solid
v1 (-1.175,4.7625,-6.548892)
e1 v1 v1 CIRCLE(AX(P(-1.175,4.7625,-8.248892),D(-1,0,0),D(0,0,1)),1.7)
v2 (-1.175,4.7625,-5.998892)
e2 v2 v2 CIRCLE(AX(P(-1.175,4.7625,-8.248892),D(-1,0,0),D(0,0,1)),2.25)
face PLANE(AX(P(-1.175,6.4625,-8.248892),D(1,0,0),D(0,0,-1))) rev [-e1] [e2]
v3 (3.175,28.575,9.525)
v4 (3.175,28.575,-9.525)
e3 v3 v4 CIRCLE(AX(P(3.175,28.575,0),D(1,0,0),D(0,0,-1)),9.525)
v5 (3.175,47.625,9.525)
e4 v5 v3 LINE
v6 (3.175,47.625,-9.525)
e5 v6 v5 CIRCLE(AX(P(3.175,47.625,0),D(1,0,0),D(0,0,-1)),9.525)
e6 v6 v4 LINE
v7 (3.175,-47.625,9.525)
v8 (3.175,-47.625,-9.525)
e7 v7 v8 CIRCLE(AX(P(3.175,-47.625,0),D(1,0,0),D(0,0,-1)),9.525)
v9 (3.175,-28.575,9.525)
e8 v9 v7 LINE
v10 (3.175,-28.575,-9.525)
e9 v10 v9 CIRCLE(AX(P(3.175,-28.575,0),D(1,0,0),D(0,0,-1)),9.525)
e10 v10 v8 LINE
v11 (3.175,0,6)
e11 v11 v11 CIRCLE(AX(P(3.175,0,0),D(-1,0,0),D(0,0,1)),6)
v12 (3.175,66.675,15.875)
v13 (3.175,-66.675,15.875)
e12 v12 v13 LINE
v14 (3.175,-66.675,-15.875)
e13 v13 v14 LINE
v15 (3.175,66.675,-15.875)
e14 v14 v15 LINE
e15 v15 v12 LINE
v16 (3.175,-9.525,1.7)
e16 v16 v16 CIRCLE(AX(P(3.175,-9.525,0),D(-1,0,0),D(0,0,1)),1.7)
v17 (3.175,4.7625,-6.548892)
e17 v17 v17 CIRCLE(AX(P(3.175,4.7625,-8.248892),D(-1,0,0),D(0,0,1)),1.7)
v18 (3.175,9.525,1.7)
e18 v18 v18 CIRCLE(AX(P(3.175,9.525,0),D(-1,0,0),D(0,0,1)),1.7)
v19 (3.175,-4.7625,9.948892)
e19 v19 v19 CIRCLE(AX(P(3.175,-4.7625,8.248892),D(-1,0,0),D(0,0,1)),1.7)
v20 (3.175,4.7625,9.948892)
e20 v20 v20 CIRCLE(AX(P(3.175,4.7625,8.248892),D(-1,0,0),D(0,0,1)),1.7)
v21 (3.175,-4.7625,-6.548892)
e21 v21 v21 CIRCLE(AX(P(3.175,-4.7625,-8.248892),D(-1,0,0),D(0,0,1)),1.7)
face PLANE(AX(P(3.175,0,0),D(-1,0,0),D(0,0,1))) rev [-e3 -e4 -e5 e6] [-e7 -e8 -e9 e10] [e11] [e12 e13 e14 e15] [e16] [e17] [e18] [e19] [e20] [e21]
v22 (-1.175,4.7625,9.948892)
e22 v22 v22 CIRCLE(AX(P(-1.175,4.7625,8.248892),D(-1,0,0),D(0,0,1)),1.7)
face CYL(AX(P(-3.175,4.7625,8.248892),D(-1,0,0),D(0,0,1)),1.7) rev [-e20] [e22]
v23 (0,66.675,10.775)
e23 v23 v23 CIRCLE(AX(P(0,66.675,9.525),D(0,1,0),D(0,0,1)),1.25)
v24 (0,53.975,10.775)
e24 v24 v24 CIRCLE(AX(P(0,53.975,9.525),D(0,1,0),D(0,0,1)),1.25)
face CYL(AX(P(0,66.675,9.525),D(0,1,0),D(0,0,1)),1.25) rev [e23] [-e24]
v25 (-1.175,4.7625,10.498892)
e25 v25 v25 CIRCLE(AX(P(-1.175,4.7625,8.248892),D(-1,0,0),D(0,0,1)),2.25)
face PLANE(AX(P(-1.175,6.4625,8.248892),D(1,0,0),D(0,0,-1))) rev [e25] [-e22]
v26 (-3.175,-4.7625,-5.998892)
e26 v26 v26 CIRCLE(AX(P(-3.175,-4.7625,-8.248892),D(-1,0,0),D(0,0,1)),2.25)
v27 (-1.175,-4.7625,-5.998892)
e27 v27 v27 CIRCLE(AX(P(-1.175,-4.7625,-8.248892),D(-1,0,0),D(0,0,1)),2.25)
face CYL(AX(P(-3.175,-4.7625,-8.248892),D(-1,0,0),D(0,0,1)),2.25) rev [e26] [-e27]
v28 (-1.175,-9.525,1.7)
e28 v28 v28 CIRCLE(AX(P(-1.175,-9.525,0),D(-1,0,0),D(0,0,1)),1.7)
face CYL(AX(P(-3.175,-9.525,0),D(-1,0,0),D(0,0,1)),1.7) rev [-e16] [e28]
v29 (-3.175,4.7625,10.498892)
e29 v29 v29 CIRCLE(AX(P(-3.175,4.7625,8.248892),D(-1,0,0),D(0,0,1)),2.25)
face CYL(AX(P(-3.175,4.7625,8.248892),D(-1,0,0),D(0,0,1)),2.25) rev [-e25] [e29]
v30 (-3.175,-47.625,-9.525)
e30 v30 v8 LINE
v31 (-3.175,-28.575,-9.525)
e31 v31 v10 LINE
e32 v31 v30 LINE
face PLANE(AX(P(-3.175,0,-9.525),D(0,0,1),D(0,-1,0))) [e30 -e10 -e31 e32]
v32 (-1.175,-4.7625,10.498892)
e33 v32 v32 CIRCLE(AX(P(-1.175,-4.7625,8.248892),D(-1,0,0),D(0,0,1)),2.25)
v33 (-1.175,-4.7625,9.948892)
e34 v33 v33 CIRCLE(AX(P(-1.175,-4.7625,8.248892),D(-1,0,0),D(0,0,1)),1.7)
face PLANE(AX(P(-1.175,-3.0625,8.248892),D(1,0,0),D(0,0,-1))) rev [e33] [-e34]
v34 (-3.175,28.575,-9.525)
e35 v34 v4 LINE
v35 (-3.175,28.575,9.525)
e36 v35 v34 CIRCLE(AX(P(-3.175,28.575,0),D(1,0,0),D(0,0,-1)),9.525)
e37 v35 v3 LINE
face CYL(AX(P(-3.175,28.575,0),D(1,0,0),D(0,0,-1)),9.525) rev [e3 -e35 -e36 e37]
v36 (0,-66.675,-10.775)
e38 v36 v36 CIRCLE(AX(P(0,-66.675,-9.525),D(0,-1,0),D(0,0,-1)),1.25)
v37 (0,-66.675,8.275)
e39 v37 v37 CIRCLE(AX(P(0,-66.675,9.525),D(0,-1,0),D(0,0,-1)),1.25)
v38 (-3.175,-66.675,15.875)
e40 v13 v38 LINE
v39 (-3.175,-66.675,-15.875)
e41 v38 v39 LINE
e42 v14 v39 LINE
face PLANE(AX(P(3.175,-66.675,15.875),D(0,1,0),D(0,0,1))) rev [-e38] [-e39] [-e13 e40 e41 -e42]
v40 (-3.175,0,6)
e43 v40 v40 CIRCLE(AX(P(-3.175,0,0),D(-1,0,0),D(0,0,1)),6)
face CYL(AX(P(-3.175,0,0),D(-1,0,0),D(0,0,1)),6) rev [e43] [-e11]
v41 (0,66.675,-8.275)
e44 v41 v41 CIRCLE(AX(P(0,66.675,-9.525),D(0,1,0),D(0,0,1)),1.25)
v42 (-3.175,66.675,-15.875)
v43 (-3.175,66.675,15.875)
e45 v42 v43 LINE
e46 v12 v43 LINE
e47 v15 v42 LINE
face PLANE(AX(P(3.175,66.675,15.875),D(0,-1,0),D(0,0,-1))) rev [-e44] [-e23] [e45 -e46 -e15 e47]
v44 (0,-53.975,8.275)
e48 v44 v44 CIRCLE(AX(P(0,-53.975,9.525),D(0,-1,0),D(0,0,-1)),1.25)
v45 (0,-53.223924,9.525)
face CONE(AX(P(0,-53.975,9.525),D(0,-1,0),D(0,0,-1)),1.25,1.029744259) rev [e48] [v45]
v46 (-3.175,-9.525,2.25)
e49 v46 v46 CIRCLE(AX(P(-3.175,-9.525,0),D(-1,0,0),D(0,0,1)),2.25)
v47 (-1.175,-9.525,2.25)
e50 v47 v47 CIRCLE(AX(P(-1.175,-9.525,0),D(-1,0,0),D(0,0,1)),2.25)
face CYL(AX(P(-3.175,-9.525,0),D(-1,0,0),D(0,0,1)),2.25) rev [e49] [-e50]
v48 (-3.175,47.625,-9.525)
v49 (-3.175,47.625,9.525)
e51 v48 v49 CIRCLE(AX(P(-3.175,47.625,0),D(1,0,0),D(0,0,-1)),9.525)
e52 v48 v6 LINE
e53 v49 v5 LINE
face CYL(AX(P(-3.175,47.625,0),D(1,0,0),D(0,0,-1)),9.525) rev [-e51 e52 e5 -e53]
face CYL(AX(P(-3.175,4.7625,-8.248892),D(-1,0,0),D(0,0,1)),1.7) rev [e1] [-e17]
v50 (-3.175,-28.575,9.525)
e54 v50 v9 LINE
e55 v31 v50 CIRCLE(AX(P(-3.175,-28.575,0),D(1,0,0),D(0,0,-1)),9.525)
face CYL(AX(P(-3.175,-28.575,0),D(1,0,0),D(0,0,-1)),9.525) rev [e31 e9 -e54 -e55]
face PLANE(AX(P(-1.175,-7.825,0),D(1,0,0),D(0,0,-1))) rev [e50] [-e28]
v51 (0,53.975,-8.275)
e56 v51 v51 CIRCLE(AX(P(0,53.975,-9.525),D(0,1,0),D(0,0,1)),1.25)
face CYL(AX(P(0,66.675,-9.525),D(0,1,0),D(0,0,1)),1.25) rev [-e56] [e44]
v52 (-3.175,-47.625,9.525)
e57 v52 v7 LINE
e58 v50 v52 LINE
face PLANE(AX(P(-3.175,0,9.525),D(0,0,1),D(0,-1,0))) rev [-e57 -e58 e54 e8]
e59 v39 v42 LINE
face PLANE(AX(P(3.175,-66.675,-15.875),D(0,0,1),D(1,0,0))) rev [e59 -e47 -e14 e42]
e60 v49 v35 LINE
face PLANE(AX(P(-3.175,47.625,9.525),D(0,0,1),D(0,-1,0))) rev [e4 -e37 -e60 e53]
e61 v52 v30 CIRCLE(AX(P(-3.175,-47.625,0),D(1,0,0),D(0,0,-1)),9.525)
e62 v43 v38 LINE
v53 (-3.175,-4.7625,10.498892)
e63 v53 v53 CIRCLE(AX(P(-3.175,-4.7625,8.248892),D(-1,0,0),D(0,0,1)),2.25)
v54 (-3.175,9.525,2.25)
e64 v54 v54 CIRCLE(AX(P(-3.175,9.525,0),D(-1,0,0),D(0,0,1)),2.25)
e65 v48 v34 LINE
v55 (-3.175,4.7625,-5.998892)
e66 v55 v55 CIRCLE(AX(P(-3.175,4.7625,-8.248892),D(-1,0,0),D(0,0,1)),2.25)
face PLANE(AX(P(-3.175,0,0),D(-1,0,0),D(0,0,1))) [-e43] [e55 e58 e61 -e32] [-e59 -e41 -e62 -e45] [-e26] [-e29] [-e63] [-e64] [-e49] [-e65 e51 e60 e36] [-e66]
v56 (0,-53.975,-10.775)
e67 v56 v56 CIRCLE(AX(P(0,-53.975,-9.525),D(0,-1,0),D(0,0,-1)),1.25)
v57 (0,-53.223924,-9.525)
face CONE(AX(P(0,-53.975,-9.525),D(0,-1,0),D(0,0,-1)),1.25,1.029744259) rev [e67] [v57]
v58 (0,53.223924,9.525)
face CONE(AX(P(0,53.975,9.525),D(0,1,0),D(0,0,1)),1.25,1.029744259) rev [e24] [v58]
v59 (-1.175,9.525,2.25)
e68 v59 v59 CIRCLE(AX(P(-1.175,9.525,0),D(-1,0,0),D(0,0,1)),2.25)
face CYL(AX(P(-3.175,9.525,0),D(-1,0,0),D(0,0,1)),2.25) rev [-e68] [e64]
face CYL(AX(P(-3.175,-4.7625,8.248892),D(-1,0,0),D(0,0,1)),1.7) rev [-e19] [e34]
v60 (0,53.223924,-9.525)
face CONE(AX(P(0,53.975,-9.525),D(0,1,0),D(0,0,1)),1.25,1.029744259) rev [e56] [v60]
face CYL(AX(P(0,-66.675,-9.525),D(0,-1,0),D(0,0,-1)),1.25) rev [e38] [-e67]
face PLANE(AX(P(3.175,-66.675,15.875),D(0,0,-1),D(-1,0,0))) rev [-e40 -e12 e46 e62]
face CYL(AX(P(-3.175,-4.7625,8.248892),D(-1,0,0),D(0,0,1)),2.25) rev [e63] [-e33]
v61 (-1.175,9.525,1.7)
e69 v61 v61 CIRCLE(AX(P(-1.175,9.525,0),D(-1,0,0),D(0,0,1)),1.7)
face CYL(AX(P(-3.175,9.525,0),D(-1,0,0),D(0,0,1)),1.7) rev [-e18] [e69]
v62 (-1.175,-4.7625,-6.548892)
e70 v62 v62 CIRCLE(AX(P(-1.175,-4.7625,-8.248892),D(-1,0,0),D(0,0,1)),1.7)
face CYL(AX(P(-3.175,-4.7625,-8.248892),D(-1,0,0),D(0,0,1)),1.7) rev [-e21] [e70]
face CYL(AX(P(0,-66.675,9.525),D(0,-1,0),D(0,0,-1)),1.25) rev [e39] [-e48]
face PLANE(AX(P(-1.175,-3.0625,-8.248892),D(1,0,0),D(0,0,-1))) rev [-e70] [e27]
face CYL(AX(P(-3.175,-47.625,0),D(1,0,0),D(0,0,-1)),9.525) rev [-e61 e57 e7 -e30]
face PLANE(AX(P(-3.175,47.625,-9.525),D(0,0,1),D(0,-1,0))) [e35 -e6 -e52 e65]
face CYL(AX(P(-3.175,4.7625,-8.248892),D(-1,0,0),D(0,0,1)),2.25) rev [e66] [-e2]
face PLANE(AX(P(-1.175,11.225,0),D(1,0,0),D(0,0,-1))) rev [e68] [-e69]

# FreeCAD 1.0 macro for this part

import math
import FreeCAD as App
import Part
import Sketcher

V = App.Vector
Q = App.Units.Quantity

doc = App.newDocument("Part")
body = doc.addObject("PartDesign::Body", "Body")

sketch1 = body.newObject("Sketcher::SketchObject", "Sketch")
sketch1.AttachmentSupport = (doc.getObject("YZ_Plane"), [""])
sketch1.MapMode = "FlatFace"
sketch1.addGeometry(Part.LineSegment(V(67, 16, 0), V(-67, 16, 0)), False)
sketch1.addGeometry(Part.LineSegment(V(-67, 16, 0), V(-67, -16, 0)), False)
sketch1.addGeometry(Part.LineSegment(V(-67, -16, 0), V(67, -16, 0)), False)
sketch1.addGeometry(Part.LineSegment(V(67, -16, 0), V(67, 16, 0)), False)
sketch1.addConstraint(Sketcher.Constraint("Coincident", 0, 2, 1, 1))
sketch1.addConstraint(Sketcher.Constraint("Coincident", 1, 2, 2, 1))
sketch1.addConstraint(Sketcher.Constraint("Coincident", 2, 2, 3, 1))
sketch1.addConstraint(Sketcher.Constraint("Coincident", 3, 2, 0, 1))
sketch1.addConstraint(Sketcher.Constraint("Horizontal", 0))
sketch1.addConstraint(Sketcher.Constraint("Vertical", 1))
sketch1.addConstraint(Sketcher.Constraint("Horizontal", 2))
sketch1.addConstraint(Sketcher.Constraint("Vertical", 3))
sketch1.addConstraint(Sketcher.Constraint("Symmetric", 0, 2, 2, 2, -1, 1))
sketch1.addConstraint(Sketcher.Constraint("DistanceX", 0, 2, 0, 1, Q("5.25 in")))
sketch1.addConstraint(Sketcher.Constraint("DistanceY", 1, 2, 1, 1, Q("1.25 in")))
pad1 = body.newObject("PartDesign::Pad", "Pad")
pad1.Profile = sketch1
pad1.Length = Q("0.25 in")
pad1.Midplane = True

sketch2 = body.newObject("Sketcher::SketchObject", "Sketch001")
sketch2.AttachmentSupport = (doc.getObject("YZ_Plane"), [""])
sketch2.MapMode = "FlatFace"
sketch2.addGeometry(Part.LineSegment(V(53.2, -9.5, 0), V(66.7, -9.5, 0)), False)
sketch2.addGeometry(Part.LineSegment(V(66.7, -9.5, 0), V(66.7, -8.3, 0)), False)
sketch2.addGeometry(Part.LineSegment(V(66.7, -8.3, 0), V(54, -8.3, 0)), False)
sketch2.addGeometry(Part.LineSegment(V(54, -8.3, 0), V(53.2, -9.5, 0)), False)
sketch2.addGeometry(Part.LineSegment(V(66.7, -9.5, 0), V(53.2, -9.5, 0)), True)
sketch2.addConstraint(Sketcher.Constraint("Coincident", 0, 2, 1, 1))
sketch2.addConstraint(Sketcher.Constraint("Coincident", 1, 2, 2, 1))
sketch2.addConstraint(Sketcher.Constraint("Coincident", 2, 2, 3, 1))
sketch2.addConstraint(Sketcher.Constraint("Coincident", 3, 2, 0, 1))
sketch2.addConstraint(Sketcher.Constraint("Horizontal", 0))
sketch2.addConstraint(Sketcher.Constraint("Vertical", 1))
sketch2.addConstraint(Sketcher.Constraint("Horizontal", 2))
sketch2.addConstraint(Sketcher.Constraint("Horizontal", 4))
sketch2.addConstraint(Sketcher.Constraint("Coincident", 4, 1, 0, 2))
sketch2.addConstraint(Sketcher.Constraint("Equal", 0, 4))
sketch2.addConstraint(Sketcher.Constraint("DistanceX", 2, 2, 2, 1, Q("0.5 in")))
sketch2.addConstraint(Sketcher.Constraint("Angle", 3, Q("-121 deg")))
sketch2.addConstraint(Sketcher.Constraint("DistanceX", -1, 1, 0, 2, Q("2.625 in")))
sketch2.addConstraint(Sketcher.Constraint("DistanceY", 0, 2, -1, 1, Q("0.375 in")))
sketch2.addConstraint(Sketcher.Constraint("DistanceY", 1, 1, 1, 2, 1.25))
groove = body.newObject("PartDesign::Groove", "Groove")
groove.Profile = sketch2
groove.ReferenceAxis = (sketch2, ["Axis0"])
groove.Angle = 360
doc.recompute()

linearpattern = body.newObject("PartDesign::LinearPattern", "LinearPattern")
linearpattern.Originals = [groove]
linearpattern.Direction = (doc.getObject("Z_Axis"), [""])
linearpattern.Mode = "offset"
linearpattern.Offset = Q("0.75 in")
linearpattern.Occurrences = 2
body.Tip = linearpattern
doc.recompute()

mirrored = body.newObject("PartDesign::Mirrored", "Mirrored")
mirrored.Originals = [groove]
mirrored.MirrorPlane = (doc.getObject("XZ_Plane"), [""])
body.Tip = mirrored

sketch3 = body.newObject("Sketcher::SketchObject", "Sketch002")
sketch3.AttachmentSupport = (doc.getObject("YZ_Plane"), [""])
sketch3.MapMode = "FlatFace"
sketch3.addGeometry(Part.LineSegment(V(-66.7, 9.5, 0), V(-53.2, 9.5, 0)), False)
sketch3.addGeometry(Part.LineSegment(V(-53.2, 9.5, 0), V(-54, 10.8, 0)), False)
sketch3.addGeometry(Part.LineSegment(V(-54, 10.8, 0), V(-66.7, 10.8, 0)), False)
sketch3.addGeometry(Part.LineSegment(V(-66.7, 10.8, 0), V(-66.7, 9.5, 0)), False)
sketch3.addGeometry(Part.LineSegment(V(-53.2, 9.5, 0), V(-66.7, 9.5, 0)), True)
sketch3.addConstraint(Sketcher.Constraint("Coincident", 0, 2, 1, 1))
sketch3.addConstraint(Sketcher.Constraint("Coincident", 1, 2, 2, 1))
sketch3.addConstraint(Sketcher.Constraint("Coincident", 2, 2, 3, 1))
sketch3.addConstraint(Sketcher.Constraint("Coincident", 3, 2, 0, 1))
sketch3.addConstraint(Sketcher.Constraint("Horizontal", 0))
sketch3.addConstraint(Sketcher.Constraint("Horizontal", 2))
sketch3.addConstraint(Sketcher.Constraint("Vertical", 3))
sketch3.addConstraint(Sketcher.Constraint("Horizontal", 4))
sketch3.addConstraint(Sketcher.Constraint("Coincident", 4, 1, 0, 2))
sketch3.addConstraint(Sketcher.Constraint("Vertical", 2, 2, 4, 2))
sketch3.addConstraint(Sketcher.Constraint("DistanceX", 2, 2, 2, 1, Q("0.5 in")))
sketch3.addConstraint(Sketcher.Constraint("Angle", 1, Q("121 deg")))
sketch3.addConstraint(Sketcher.Constraint("DistanceY", -1, 1, 0, 2, Q("0.375 in")))
sketch3.addConstraint(Sketcher.Constraint("DistanceX", 1, 2, -1, 1, Q("2.125 in")))
sketch3.addConstraint(Sketcher.Constraint("DistanceY", 3, 2, 3, 1, 1.25))
groove2 = body.newObject("PartDesign::Groove", "Groove001")
groove2.Profile = sketch3
groove2.ReferenceAxis = (sketch3, ["Axis0"])
groove2.Angle = 360

sketch4 = body.newObject("Sketcher::SketchObject", "Sketch003")
sketch4.AttachmentSupport = (doc.getObject("YZ_Plane"), [""])
sketch4.MapMode = "FlatFace"
sketch4.AttachmentOffset = App.Placement(V(0, 0, -0.125 * 25.4), App.Rotation())
sketch4.addGeometry(Part.Circle(V(0, 0, 0), V(0, 0, 1), 6), False)
sketch4.addConstraint(Sketcher.Constraint("Coincident", 0, 3, -1, 1))
sketch4.addConstraint(Sketcher.Constraint("Diameter", 0, 12.0))
doc.recompute()
hole = body.newObject("PartDesign::Hole", "Hole")
hole.Profile = sketch4
hole.ThreadType = "None"
hole.Diameter = 12
hole.DepthType = "ThroughAll"
hole.Reversed = True

sketch5 = body.newObject("Sketcher::SketchObject", "Sketch004")
sketch5.AttachmentSupport = (doc.getObject("YZ_Plane"), [""])
sketch5.MapMode = "FlatFace"
sketch5.AttachmentOffset = App.Placement(V(0, 0, -0.125 * 25.4), App.Rotation())
sketch5.addGeometry(Part.Circle(V(-4.8, 8.2, 0), V(0, 0, 1), 1.7), False)
sketch5.addGeometry(Part.Circle(V(4.8, 8.2, 0), V(0, 0, 1), 1.7), False)
sketch5.addGeometry(Part.Circle(V(9.5, 0, 0), V(0, 0, 1), 1.7), False)
sketch5.addGeometry(Part.Circle(V(4.8, -8.2, 0), V(0, 0, 1), 1.7), False)
sketch5.addGeometry(Part.Circle(V(-4.8, -8.2, 0), V(0, 0, 1), 1.7), False)
sketch5.addGeometry(Part.Circle(V(-9.5, 0, 0), V(0, 0, 1), 1.7), False)
sketch5.addConstraint(Sketcher.Constraint("Equal", 0, 1))
sketch5.addConstraint(Sketcher.Constraint("Equal", 1, 2))
sketch5.addConstraint(Sketcher.Constraint("Equal", 2, 3))
sketch5.addConstraint(Sketcher.Constraint("Equal", 3, 4))
sketch5.addConstraint(Sketcher.Constraint("Equal", 4, 5))
sketch5.addConstraint(Sketcher.Constraint("Symmetric", 0, 3, 3, 3, -1, 1))
sketch5.addConstraint(Sketcher.Constraint("Symmetric", 1, 3, 4, 3, -1, 1))
sketch5.addConstraint(Sketcher.Constraint("Symmetric", 2, 3, 5, 3, -1, 1))
sketch5.addConstraint(Sketcher.Constraint("Symmetric", 0, 3, 1, 3, -2))
sketch5.addConstraint(Sketcher.Constraint("PointOnObject", 2, 3, -1))
sketch5.addConstraint(Sketcher.Constraint("Diameter", 0, 3.4))
sketch5.addConstraint(Sketcher.Constraint("DistanceX", 5, 3, 2, 3, Q("0.75 in")))
sketch5.addConstraint(Sketcher.Constraint("DistanceX", 0, 3, -1, 1, Q("0.1875 in")))
sketch5.addConstraint(Sketcher.Constraint("DistanceY", -1, 1, 0, 3, 8.248892))
doc.recompute()
hole2 = body.newObject("PartDesign::Hole", "Hole001")
hole2.Profile = sketch5
hole2.ThreadType = "None"
hole2.Diameter = 3.4
hole2.DepthType = "Dimension"
hole2.Depth = 11.678537
hole2.DrillPoint = "Angled"
hole2.DrillPointAngle = 118
hole2.HoleCutType = "Counterbore"
hole2.HoleCutDiameter = 4.5
hole2.HoleCutDepth = 2
hole2.Reversed = True

sketch6 = body.newObject("Sketcher::SketchObject", "Sketch005")
sketch6.AttachmentSupport = (doc.getObject("YZ_Plane"), [""])
sketch6.MapMode = "FlatFace"
sketch6.AttachmentOffset = App.Placement(V(0, 0, 0.125 * 25.4), App.Rotation())
sketch6.addGeometry(Part.LineSegment(V(-29, 10, 0), V(-48, 10, 0)), False)
sketch6.addGeometry(Part.ArcOfCircle(Part.Circle(V(-48, 0, 0), V(0, 0, 1), 10), math.radians(90), math.radians(270)), False)
sketch6.addGeometry(Part.LineSegment(V(-48, -10, 0), V(-29, -10, 0)), False)
sketch6.addGeometry(Part.ArcOfCircle(Part.Circle(V(-29, 0, 0), V(0, 0, 1), 10), math.radians(-90), math.radians(90)), False)
sketch6.addGeometry(Part.LineSegment(V(29, -10, 0), V(48, -10, 0)), False)
sketch6.addGeometry(Part.ArcOfCircle(Part.Circle(V(48, 0, 0), V(0, 0, 1), 10), math.radians(-90), math.radians(90)), False)
sketch6.addGeometry(Part.LineSegment(V(48, 10, 0), V(29, 10, 0)), False)
sketch6.addGeometry(Part.ArcOfCircle(Part.Circle(V(29, 0, 0), V(0, 0, 1), 10), math.radians(90), math.radians(270)), False)
sketch6.addConstraint(Sketcher.Constraint("Tangent", 0, 2, 1, 1))
sketch6.addConstraint(Sketcher.Constraint("Tangent", 1, 2, 2, 1))
sketch6.addConstraint(Sketcher.Constraint("Tangent", 2, 2, 3, 1))
sketch6.addConstraint(Sketcher.Constraint("Tangent", 3, 2, 0, 1))
sketch6.addConstraint(Sketcher.Constraint("Tangent", 4, 2, 5, 1))
sketch6.addConstraint(Sketcher.Constraint("Tangent", 5, 2, 6, 1))
sketch6.addConstraint(Sketcher.Constraint("Tangent", 6, 2, 7, 1))
sketch6.addConstraint(Sketcher.Constraint("Tangent", 7, 2, 4, 1))
sketch6.addConstraint(Sketcher.Constraint("Horizontal", 0))
sketch6.addConstraint(Sketcher.Constraint("Horizontal", 2))
sketch6.addConstraint(Sketcher.Constraint("Horizontal", 4))
sketch6.addConstraint(Sketcher.Constraint("Horizontal", 6))
sketch6.addConstraint(Sketcher.Constraint("Equal", 3, 5))
sketch6.addConstraint(Sketcher.Constraint("Symmetric", 1, 3, 5, 3, -1, 1))
sketch6.addConstraint(Sketcher.Constraint("Symmetric", 3, 3, 7, 3, -2))
sketch6.addConstraint(Sketcher.Constraint("Radius", 1, Q("0.375 in")))
sketch6.addConstraint(Sketcher.Constraint("DistanceX", 3, 3, 5, 3, Q("3 in")))
sketch6.addConstraint(Sketcher.Constraint("DistanceX", 0, 2, 0, 1, Q("0.75 in")))
pocket1 = body.newObject("PartDesign::Pocket", "Pocket")
pocket1.Profile = sketch6
pocket1.Type = "ThroughAll"

doc.recompute()
